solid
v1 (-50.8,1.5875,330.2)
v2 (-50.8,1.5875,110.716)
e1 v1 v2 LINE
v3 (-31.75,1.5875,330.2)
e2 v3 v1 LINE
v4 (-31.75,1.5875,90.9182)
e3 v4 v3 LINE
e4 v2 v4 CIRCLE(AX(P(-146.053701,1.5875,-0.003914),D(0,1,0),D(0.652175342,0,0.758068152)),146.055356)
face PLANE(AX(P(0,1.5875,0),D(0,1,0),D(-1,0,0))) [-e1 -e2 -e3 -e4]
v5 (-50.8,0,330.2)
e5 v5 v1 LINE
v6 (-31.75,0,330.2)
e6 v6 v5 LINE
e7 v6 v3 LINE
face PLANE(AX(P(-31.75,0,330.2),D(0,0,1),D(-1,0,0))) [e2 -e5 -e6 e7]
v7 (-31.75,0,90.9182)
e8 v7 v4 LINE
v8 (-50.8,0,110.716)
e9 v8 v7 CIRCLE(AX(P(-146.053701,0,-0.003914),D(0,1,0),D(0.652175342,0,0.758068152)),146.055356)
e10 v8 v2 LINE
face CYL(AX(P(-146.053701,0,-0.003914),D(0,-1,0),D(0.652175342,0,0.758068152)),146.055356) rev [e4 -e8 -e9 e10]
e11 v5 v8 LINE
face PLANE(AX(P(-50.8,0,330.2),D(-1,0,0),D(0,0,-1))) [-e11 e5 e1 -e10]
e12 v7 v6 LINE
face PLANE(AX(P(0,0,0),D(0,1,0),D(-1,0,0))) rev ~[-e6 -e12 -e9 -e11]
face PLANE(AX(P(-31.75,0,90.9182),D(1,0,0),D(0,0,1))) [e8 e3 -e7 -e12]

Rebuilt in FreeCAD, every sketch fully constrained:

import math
import FreeCAD as App
import Part
import Sketcher
from FreeCAD import Vector
Q = App.Units.Quantity

doc = App.newDocument("Part")
params = doc.addObject("Spreadsheet::Sheet", "Params")
for row, (alias, value) in enumerate([
    ("sketch1_width", "0.75 in"),
    ("pad1_length", "0.0625 in"),
], start=1):
    params.set(f"A{row}", alias)
    params.set(f"B{row}", "=" + value)
    params.setAlias(f"B{row}", alias)

body = doc.addObject("PartDesign::Body", "Body")

# Sketch on XZ plane
sketch1 = doc.addObject("Sketcher::SketchObject", "Sketch")
body.addObject(sketch1)
sketch1.AttachmentSupport = (doc.XZ_Plane, [""])
sketch1.MapMode = "FlatFace"
sketch1.addGeometry(Part.LineSegment(Vector(-32, 330, 0), Vector(-32, 91, 0)), False)
sketch1.addGeometry(Part.ArcOfCircle(Part.Circle(Vector(-146, 0, 0), Vector(0, 0, 1), 146), math.radians(38.5), math.radians(49.29)), False)
sketch1.addGeometry(Part.LineSegment(Vector(-51, 111, 0), Vector(-51, 330, 0)), False)
sketch1.addGeometry(Part.LineSegment(Vector(-51, 330, 0), Vector(-32, 330, 0)), False)
sketch1.addConstraint(Sketcher.Constraint("Coincident", 0, 2, 1, 1))
sketch1.addConstraint(Sketcher.Constraint("Coincident", 1, 2, 2, 1))
sketch1.addConstraint(Sketcher.Constraint("Coincident", 2, 2, 3, 1))
sketch1.addConstraint(Sketcher.Constraint("Coincident", 3, 2, 0, 1))
sketch1.addConstraint(Sketcher.Constraint("Vertical", 0))
sketch1.addConstraint(Sketcher.Constraint("Vertical", 2))
sketch1.addConstraint(Sketcher.Constraint("Horizontal", 3))
sketch1.addConstraint(Sketcher.Constraint("DistanceY", -1, 1, 2, 2, Q("13 in")))
sketch1.addConstraint(Sketcher.Constraint("DistanceX", 3, 1, 3, 2, Q("0.75 in")))
sketch1.addConstraint(Sketcher.Constraint("DistanceX", 0, 2, -1, 1, Q("1.25 in")))
sketch1.addConstraint(Sketcher.Constraint("Radius", 1, Q("5.7502 in")))
sketch1.addConstraint(Sketcher.Constraint("DistanceY", 2, 1, 2, 2, Q("8.6411 in")))
sketch1.addConstraint(Sketcher.Constraint("DistanceY", 0, 2, 0, 1, 239.2818))
sketch1.setExpression("Constraints[8]", "Params.sketch1_width")
pad1 = doc.addObject("PartDesign::Pad", "Pad")
body.addObject(pad1)
pad1.Profile = sketch1
pad1.setExpression("Length", "Params.pad1_length")
pad1.Reversed = True

doc.recompute()
